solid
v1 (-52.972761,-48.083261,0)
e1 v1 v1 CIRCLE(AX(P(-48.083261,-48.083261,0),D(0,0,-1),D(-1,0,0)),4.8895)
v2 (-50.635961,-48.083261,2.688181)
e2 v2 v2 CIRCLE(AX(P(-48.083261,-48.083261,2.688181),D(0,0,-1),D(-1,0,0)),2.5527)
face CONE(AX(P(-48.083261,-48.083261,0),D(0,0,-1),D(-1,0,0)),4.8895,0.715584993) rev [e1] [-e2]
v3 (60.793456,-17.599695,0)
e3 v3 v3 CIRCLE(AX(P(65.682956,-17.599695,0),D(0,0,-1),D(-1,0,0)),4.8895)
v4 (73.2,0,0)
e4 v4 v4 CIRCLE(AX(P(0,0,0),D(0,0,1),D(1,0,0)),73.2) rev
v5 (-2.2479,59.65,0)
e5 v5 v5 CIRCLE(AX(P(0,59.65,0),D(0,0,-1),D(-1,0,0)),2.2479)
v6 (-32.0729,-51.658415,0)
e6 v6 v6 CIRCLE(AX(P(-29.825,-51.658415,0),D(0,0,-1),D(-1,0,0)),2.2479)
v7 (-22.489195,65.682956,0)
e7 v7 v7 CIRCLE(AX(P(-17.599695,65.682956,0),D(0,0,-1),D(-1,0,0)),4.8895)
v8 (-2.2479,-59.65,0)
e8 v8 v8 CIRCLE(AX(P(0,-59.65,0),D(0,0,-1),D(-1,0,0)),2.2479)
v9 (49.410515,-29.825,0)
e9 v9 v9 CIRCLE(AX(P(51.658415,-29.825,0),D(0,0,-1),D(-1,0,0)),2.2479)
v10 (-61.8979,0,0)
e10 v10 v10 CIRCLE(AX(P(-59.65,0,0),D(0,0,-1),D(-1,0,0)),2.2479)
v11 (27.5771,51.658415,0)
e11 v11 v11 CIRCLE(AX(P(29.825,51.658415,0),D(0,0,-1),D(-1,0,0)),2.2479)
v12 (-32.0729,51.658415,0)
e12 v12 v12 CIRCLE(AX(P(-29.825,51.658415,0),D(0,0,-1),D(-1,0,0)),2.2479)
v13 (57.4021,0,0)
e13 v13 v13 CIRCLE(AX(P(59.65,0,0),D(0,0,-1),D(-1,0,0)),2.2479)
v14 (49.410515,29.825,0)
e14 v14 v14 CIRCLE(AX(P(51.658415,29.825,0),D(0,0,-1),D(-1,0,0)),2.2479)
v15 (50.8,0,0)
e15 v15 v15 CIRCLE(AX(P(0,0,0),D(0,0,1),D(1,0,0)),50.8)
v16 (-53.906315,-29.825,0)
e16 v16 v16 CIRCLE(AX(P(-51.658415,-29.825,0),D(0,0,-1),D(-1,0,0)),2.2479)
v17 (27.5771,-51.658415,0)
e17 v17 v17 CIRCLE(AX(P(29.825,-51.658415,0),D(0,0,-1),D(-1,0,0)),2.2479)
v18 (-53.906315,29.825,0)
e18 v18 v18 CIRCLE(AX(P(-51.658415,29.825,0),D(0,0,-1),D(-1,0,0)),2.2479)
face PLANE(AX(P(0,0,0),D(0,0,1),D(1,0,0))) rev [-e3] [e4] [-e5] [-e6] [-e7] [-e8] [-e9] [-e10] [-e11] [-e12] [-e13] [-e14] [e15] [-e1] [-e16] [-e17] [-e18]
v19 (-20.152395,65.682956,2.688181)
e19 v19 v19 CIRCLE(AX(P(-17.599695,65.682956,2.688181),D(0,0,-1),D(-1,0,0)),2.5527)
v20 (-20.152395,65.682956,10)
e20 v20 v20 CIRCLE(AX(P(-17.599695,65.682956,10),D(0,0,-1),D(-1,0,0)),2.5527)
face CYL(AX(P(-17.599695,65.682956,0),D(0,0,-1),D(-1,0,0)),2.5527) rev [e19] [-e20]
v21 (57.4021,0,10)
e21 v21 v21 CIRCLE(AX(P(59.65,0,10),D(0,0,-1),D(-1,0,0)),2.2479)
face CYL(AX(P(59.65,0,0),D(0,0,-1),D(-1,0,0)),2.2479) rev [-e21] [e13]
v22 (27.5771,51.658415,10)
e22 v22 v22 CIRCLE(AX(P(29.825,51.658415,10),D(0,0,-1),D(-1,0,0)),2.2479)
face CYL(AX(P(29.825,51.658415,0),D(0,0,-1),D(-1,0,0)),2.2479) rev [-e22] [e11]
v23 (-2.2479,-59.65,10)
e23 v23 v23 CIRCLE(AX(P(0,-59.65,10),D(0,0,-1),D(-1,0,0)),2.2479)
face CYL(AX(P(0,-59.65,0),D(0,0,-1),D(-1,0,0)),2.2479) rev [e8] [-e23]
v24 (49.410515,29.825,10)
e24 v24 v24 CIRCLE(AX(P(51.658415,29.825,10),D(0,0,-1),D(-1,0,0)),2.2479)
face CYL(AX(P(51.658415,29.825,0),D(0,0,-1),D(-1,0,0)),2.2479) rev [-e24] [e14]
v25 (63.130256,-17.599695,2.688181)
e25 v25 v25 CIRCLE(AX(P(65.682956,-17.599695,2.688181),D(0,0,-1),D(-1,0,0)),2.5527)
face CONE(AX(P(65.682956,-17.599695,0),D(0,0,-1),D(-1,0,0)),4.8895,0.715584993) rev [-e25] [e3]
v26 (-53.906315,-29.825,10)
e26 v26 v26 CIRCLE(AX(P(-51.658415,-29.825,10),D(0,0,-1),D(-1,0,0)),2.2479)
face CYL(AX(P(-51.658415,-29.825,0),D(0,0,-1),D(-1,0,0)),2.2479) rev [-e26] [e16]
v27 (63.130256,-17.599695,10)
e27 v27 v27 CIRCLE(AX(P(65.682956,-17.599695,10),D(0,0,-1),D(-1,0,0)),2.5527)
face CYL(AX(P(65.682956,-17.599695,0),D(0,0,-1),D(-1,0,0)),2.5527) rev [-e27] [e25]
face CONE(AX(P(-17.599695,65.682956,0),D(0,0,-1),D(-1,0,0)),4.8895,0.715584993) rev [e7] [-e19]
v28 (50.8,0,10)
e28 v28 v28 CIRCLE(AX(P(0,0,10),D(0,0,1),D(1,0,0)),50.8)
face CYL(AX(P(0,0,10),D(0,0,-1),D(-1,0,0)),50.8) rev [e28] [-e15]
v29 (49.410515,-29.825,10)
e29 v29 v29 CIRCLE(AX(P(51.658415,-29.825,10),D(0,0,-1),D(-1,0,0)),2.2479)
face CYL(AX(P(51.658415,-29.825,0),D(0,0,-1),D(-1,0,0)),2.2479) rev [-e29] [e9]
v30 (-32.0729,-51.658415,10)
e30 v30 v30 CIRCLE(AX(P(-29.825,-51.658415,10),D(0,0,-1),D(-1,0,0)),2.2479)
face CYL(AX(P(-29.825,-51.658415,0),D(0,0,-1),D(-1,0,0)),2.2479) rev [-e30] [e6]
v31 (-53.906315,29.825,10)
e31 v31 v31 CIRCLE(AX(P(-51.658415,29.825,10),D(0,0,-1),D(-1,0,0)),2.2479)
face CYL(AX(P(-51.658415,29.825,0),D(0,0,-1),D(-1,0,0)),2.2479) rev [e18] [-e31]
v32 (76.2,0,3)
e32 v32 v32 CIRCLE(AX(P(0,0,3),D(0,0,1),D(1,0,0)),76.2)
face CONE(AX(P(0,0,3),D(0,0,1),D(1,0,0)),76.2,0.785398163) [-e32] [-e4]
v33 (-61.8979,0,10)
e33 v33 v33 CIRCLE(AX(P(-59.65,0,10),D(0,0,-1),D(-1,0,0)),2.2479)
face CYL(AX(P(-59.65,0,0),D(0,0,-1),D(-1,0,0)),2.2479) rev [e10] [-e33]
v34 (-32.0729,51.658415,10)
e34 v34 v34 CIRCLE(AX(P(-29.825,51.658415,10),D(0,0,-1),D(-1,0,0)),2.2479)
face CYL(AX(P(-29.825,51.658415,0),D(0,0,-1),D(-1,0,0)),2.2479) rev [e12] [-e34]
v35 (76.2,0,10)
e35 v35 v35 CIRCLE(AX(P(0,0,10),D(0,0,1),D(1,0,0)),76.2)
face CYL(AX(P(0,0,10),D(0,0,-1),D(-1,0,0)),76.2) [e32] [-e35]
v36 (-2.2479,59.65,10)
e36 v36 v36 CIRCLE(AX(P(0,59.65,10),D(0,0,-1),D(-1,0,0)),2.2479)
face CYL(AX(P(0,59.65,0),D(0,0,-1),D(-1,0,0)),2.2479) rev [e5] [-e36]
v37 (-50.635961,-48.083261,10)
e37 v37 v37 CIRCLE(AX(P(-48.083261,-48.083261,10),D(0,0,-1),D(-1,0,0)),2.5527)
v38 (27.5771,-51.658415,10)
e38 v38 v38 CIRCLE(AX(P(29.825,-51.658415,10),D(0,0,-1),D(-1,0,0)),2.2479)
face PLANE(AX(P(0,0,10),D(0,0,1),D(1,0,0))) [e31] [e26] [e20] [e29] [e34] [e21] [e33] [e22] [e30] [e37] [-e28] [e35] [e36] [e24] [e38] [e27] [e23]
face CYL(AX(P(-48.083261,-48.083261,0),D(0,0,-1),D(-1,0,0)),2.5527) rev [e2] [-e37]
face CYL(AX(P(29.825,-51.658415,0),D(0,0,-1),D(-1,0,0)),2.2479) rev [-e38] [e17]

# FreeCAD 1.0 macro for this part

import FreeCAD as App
import Part
import Sketcher
from FreeCAD import Vector
Q = App.Units.Quantity


def edges_at(feature, points):
    """Names of the edges that pass closest to the given points."""
    edges = feature.Shape.Edges
    near = lambda p: min(range(len(edges)), key=lambda i: edges[i].distToShape(Part.Vertex(*p))[0])
    return sorted({f"Edge{near(p) + 1}" for p in points})

doc = App.newDocument("Part")
params = doc.addObject("Spreadsheet::Sheet", "Params")
for row, (alias, value) in enumerate([
    ("sketch1_diameter", "6 in"),
    ("sketch1_diameter2", "4 in"),
    ("pad1_length", "10 mm"),
    ("chamfer_size", "3 mm"),
    ("sketch2_diameter", "0.177 in"),
    ("hole_diameter", "0.177 in"),
    ("sketch3_diameter", "0.201 in"),
    ("hole2_diameter", "0.201 in"),
    ("hole2_csink_diameter", "0.385 in"),
], start=1):
    params.set(f"A{row}", alias)
    params.set(f"B{row}", "=" + value)
    params.setAlias(f"B{row}", alias)

body = doc.addObject("PartDesign::Body", "Body")

# Sketch on XY plane
sketch1 = body.newObject("Sketcher::SketchObject", "Sketch")
sketch1.AttachmentSupport = (doc.getObject("XY_Plane"), [""])
sketch1.MapMode = "FlatFace"
sketch1.addGeometry(Part.Circle(Vector(0, 0, 0), Vector(0, 0, 1), 76.2), False)
sketch1.addGeometry(Part.Circle(Vector(0, 0, 0), Vector(0, 0, 1), 50.8), False)
sketch1.addConstraint(Sketcher.Constraint("Coincident", 0, 3, -1, 1))
sketch1.addConstraint(Sketcher.Constraint("Coincident", 1, 3, -1, 1))
sketch1.addConstraint(Sketcher.Constraint("Diameter", 0, Q("6 in")))
sketch1.addConstraint(Sketcher.Constraint("Diameter", 1, Q("4 in")))
sketch1.setExpression("Constraints[2]", "Params.sketch1_diameter")
sketch1.setExpression("Constraints[3]", "Params.sketch1_diameter2")
pad1 = body.newObject("PartDesign::Pad", "Pad")
pad1.Profile = sketch1
pad1.setExpression("Length", "Params.pad1_length")
doc.recompute()

chamfer = body.newObject("PartDesign::Chamfer", "Chamfer")
chamfer.Base = (pad1, edges_at(pad1, [(-76.2, 0, 0)]))
chamfer.setExpression("Size", "Params.chamfer_size")

# Sketch on XY plane
sketch2 = body.newObject("Sketcher::SketchObject", "Sketch001")
sketch2.AttachmentSupport = (doc.getObject("XY_Plane"), [""])
sketch2.MapMode = "FlatFace"
sketch2.addGeometry(Part.Circle(Vector(0, 59.65, 0), Vector(0, 0, 1), 2.2479), False)
sketch2.addGeometry(Part.Circle(Vector(-51.658415, 29.825, 0), Vector(0, 0, 1), 2.2479), False)
sketch2.addGeometry(Part.Circle(Vector(-29.825, 51.658415, 0), Vector(0, 0, 1), 2.2479), False)
sketch2.addGeometry(Part.Circle(Vector(-59.65, 0, 0), Vector(0, 0, 1), 2.2479), False)
sketch2.addGeometry(Part.Circle(Vector(-51.658415, -29.825, 0), Vector(0, 0, 1), 2.2479), False)
sketch2.addGeometry(Part.Circle(Vector(-29.825, -51.658415, 0), Vector(0, 0, 1), 2.2479), False)
sketch2.addGeometry(Part.Circle(Vector(0, -59.65, 0), Vector(0, 0, 1), 2.2479), False)
sketch2.addGeometry(Part.Circle(Vector(29.825, -51.658415, 0), Vector(0, 0, 1), 2.2479), False)
sketch2.addGeometry(Part.Circle(Vector(51.658415, -29.825, 0), Vector(0, 0, 1), 2.2479), False)
sketch2.addGeometry(Part.Circle(Vector(59.65, 0, 0), Vector(0, 0, 1), 2.2479), False)
sketch2.addGeometry(Part.Circle(Vector(51.658415, 29.825, 0), Vector(0, 0, 1), 2.2479), False)
sketch2.addGeometry(Part.Circle(Vector(29.825, 51.658415, 0), Vector(0, 0, 1), 2.2479), False)
sketch2.addConstraint(Sketcher.Constraint("Equal", 0, 1))
sketch2.addConstraint(Sketcher.Constraint("Equal", 1, 2))
sketch2.addConstraint(Sketcher.Constraint("Equal", 2, 3))
sketch2.addConstraint(Sketcher.Constraint("Equal", 3, 4))
sketch2.addConstraint(Sketcher.Constraint("Equal", 4, 5))
sketch2.addConstraint(Sketcher.Constraint("Equal", 5, 6))
sketch2.addConstraint(Sketcher.Constraint("Equal", 6, 7))
sketch2.addConstraint(Sketcher.Constraint("Equal", 7, 8))
sketch2.addConstraint(Sketcher.Constraint("Equal", 8, 9))
sketch2.addConstraint(Sketcher.Constraint("Equal", 9, 10))
sketch2.addConstraint(Sketcher.Constraint("Equal", 10, 11))
sketch2.addConstraint(Sketcher.Constraint("Symmetric", 0, 3, 6, 3, -1, 1))
sketch2.addConstraint(Sketcher.Constraint("Symmetric", 2, 3, 7, 3, -1, 1))
sketch2.addConstraint(Sketcher.Constraint("Symmetric", 1, 3, 8, 3, -1, 1))
sketch2.addConstraint(Sketcher.Constraint("Symmetric", 3, 3, 9, 3, -1, 1))
sketch2.addConstraint(Sketcher.Constraint("Symmetric", 4, 3, 10, 3, -1, 1))
sketch2.addConstraint(Sketcher.Constraint("Symmetric", 5, 3, 11, 3, -1, 1))
sketch2.addConstraint(Sketcher.Constraint("Symmetric", 5, 3, 7, 3, -2))
sketch2.addConstraint(Sketcher.Constraint("Symmetric", 4, 3, 8, 3, -2))
sketch2.addConstraint(Sketcher.Constraint("PointOnObject", 0, 3, -2))
sketch2.addConstraint(Sketcher.Constraint("PointOnObject", 3, 3, -1))
sketch2.addConstraint(Sketcher.Constraint("Diameter", 0, Q("0.177 in")))
sketch2.addConstraint(Sketcher.Constraint("DistanceY", -1, 1, 0, 3, 59.65))
sketch2.addConstraint(Sketcher.Constraint("DistanceY", -1, 1, 1, 3, 29.825))
sketch2.addConstraint(Sketcher.Constraint("DistanceX", 2, 3, -1, 1, 29.825))
sketch2.addConstraint(Sketcher.Constraint("DistanceX", 3, 3, -1, 1, 59.65))
sketch2.addConstraint(Sketcher.Constraint("DistanceY", 5, 3, 2, 3, 103.316831))
sketch2.addConstraint(Sketcher.Constraint("DistanceX", 4, 3, 8, 3, 103.316831))
sketch2.setExpression("Constraints[21]", "Params.sketch2_diameter")
doc.recompute()
hole = body.newObject("PartDesign::Hole", "Hole")
hole.Profile = sketch2
hole.ThreadType = "None"
hole.setExpression("Diameter", "Params.hole_diameter")
hole.DepthType = "ThroughAll"
hole.Reversed = True

# Sketch on XY plane
sketch3 = body.newObject("Sketcher::SketchObject", "Sketch002")
sketch3.AttachmentSupport = (doc.getObject("XY_Plane"), [""])
sketch3.MapMode = "FlatFace"
sketch3.addGeometry(Part.Circle(Vector(-48.083261, -48.083261, 0), Vector(0, 0, 1), 2.5527), False)
sketch3.addGeometry(Part.Circle(Vector(65.682956, -17.599695, 0), Vector(0, 0, 1), 2.5527), False)
sketch3.addGeometry(Part.Circle(Vector(-17.599695, 65.682956, 0), Vector(0, 0, 1), 2.5527), False)
sketch3.addConstraint(Sketcher.Constraint("Equal", 0, 1))
sketch3.addConstraint(Sketcher.Constraint("Equal", 1, 2))
sketch3.addConstraint(Sketcher.Constraint("Diameter", 0, Q("0.201 in")))
sketch3.addConstraint(Sketcher.Constraint("DistanceX", 0, 3, -1, 1, 48.083261))
sketch3.addConstraint(Sketcher.Constraint("DistanceY", 0, 3, -1, 1, 48.083261))
sketch3.addConstraint(Sketcher.Constraint("DistanceX", 2, 3, 1, 3, 83.282651))
sketch3.addConstraint(Sketcher.Constraint("DistanceY", 1, 3, 2, 3, 83.282651))
sketch3.addConstraint(Sketcher.Constraint("DistanceX", -1, 1, 1, 3, 65.682956))
sketch3.addConstraint(Sketcher.Constraint("DistanceY", 1, 3, -1, 1, 17.599695))
sketch3.setExpression("Constraints[2]", "Params.sketch3_diameter")
doc.recompute()
hole2 = body.newObject("PartDesign::Hole", "Hole001")
hole2.Profile = sketch3
hole2.ThreadType = "None"
hole2.setExpression("Diameter", "Params.hole2_diameter")
hole2.DepthType = "ThroughAll"
hole2.HoleCutType = "Countersink"
hole2.setExpression("HoleCutDiameter", "Params.hole2_csink_diameter")
hole2.HoleCutCountersinkAngle = 82
hole2.Reversed = True

doc.recompute()
